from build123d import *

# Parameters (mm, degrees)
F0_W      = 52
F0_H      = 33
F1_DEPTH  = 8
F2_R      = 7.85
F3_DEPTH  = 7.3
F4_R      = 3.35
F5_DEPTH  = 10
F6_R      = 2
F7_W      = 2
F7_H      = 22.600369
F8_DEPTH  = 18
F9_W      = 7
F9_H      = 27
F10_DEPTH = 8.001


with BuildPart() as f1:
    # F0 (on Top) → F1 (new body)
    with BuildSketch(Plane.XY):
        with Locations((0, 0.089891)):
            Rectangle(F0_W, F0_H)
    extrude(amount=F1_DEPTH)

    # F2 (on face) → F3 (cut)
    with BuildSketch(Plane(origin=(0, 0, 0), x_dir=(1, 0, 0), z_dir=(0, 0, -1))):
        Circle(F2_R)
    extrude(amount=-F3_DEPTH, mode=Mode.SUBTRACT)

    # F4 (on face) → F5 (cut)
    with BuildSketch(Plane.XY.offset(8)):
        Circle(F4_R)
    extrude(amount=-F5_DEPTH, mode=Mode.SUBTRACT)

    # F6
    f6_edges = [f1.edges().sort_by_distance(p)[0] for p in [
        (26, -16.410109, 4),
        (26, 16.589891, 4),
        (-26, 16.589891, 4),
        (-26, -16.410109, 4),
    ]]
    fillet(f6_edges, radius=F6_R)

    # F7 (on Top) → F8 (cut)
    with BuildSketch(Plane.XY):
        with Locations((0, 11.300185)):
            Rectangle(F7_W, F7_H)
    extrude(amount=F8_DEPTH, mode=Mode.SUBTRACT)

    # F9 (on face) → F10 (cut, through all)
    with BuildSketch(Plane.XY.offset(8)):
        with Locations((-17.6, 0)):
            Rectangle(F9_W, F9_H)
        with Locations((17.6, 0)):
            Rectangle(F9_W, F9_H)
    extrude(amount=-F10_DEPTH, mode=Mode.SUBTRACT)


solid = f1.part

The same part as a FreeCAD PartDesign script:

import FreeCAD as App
import Part
import Sketcher
Q = App.Units.Quantity


def edges_at(feature, points):
    """Names of the edges that pass closest to the given points."""
    edges = feature.Shape.Edges
    near = lambda p: min(range(len(edges)), key=lambda i: edges[i].distToShape(Part.Vertex(*p))[0])
    return sorted({f"Edge{near(p) + 1}" for p in points})


def add_polygon(sketch, points):
    """Adds a closed chain of lines whose ends are joined by coincident constraints."""
    first, n = sketch.GeometryCount, len(points)
    for a, b in zip(points, points[1:] + points[:1]):
        sketch.addGeometry(Part.LineSegment(App.Vector(*a, 0), App.Vector(*b, 0)), False)
    for i in range(n):
        sketch.addConstraint(Sketcher.Constraint("Coincident", first + i, 2, first + (i + 1) % n, 1))

doc = App.newDocument("Part")
body = doc.addObject("PartDesign::Body", "Body")

sketch1 = body.newObject("Sketcher::SketchObject", "Sketch")
sketch1.AttachmentSupport = (doc.getObject("XY_Plane"), [""])
sketch1.MapMode = "FlatFace"
add_polygon(sketch1, [(-26, 17), (-26, -16), (26, -16), (26, 17)])
sketch1.addConstraint(Sketcher.Constraint("Vertical", 0))
sketch1.addConstraint(Sketcher.Constraint("Horizontal", 1))
sketch1.addConstraint(Sketcher.Constraint("Vertical", 2))
sketch1.addConstraint(Sketcher.Constraint("Horizontal", 3))
sketch1.addConstraint(Sketcher.Constraint("DistanceX", 1, 1, 1, 2, Q("52 mm")))
sketch1.addConstraint(Sketcher.Constraint("DistanceY", 0, 2, 0, 1, Q("33 mm")))
sketch1.addConstraint(Sketcher.Constraint("DistanceX", 0, 2, -1, 1, Q("26 mm")))
sketch1.addConstraint(Sketcher.Constraint("DistanceY", 0, 2, -1, 1, Q("16.410109 mm")))
pad1 = body.newObject("PartDesign::Pad", "Pad")
pad1.Profile = sketch1
pad1.Length = 8

sketch2 = body.newObject("Sketcher::SketchObject", "Sketch001")
sketch2.AttachmentSupport = (doc.getObject("XY_Plane"), [""])
sketch2.MapMode = "FlatFace"
sketch2.addGeometry(Part.Circle(App.Vector(0, 0, 0), App.Vector(0, 0, 1), 8), False)
sketch2.addConstraint(Sketcher.Constraint("Coincident", 0, 3, -1, 1))
sketch2.addConstraint(Sketcher.Constraint("Diameter", 0, Q("15.7 mm")))
pocket1 = body.newObject("PartDesign::Pocket", "Pocket")
pocket1.Profile = sketch2
pocket1.Length = 7.3
pocket1.Reversed = True

sketch3 = body.newObject("Sketcher::SketchObject", "Sketch002")
sketch3.AttachmentSupport = (doc.getObject("XY_Plane"), [""])
sketch3.MapMode = "FlatFace"
sketch3.AttachmentOffset = App.Placement(App.Vector(0, 0, 8), App.Rotation())
sketch3.addGeometry(Part.Circle(App.Vector(0, 0, 0), App.Vector(0, 0, 1), 3.4), False)
sketch3.addConstraint(Sketcher.Constraint("Coincident", 0, 3, -1, 1))
sketch3.addConstraint(Sketcher.Constraint("Diameter", 0, Q("6.7 mm")))
pocket2 = body.newObject("PartDesign::Pocket", "Pocket001")
pocket2.Profile = sketch3
pocket2.Length = 10
doc.recompute()

fillet = body.newObject("PartDesign::Fillet", "Fillet")
fillet.Base = (pocket2, edges_at(pocket2, [
    (26, -16.41, 4),
    (26, 16.59, 4),
    (-26, 16.59, 4),
    (-26, -16.41, 4),
]))
fillet.Radius = 2

sketch4 = body.newObject("Sketcher::SketchObject", "Sketch003")
sketch4.AttachmentSupport = (doc.getObject("XY_Plane"), [""])
sketch4.MapMode = "FlatFace"
add_polygon(sketch4, [(-1, 22.6), (-1, 0), (1, 0), (1, 22.6)])
sketch4.addConstraint(Sketcher.Constraint("Vertical", 0))
sketch4.addConstraint(Sketcher.Constraint("Horizontal", 1))
sketch4.addConstraint(Sketcher.Constraint("Vertical", 2))
sketch4.addConstraint(Sketcher.Constraint("Horizontal", 3))
sketch4.addConstraint(Sketcher.Constraint("Symmetric", 0, 2, 1, 2, -1, 1))
sketch4.addConstraint(Sketcher.Constraint("DistanceX", 1, 1, 1, 2, Q("2 mm")))
sketch4.addConstraint(Sketcher.Constraint("DistanceY", 0, 2, 0, 1, Q("22.600369 mm")))
pocket3 = body.newObject("PartDesign::Pocket", "Pocket002")
pocket3.Profile = sketch4
pocket3.Length = 18
pocket3.Reversed = True

sketch5 = body.newObject("Sketcher::SketchObject", "Sketch004")
sketch5.AttachmentSupport = (doc.getObject("XY_Plane"), [""])
sketch5.MapMode = "FlatFace"
sketch5.AttachmentOffset = App.Placement(App.Vector(0, 0, 8), App.Rotation())
add_polygon(sketch5, [(-21, 14), (-21, -14), (-14, -14), (-14, 14)])
add_polygon(sketch5, [(14, 14), (14, -14), (21, -14), (21, 14)])
sketch5.addConstraint(Sketcher.Constraint("Vertical", 0))
sketch5.addConstraint(Sketcher.Constraint("Horizontal", 1))
sketch5.addConstraint(Sketcher.Constraint("Vertical", 2))
sketch5.addConstraint(Sketcher.Constraint("Horizontal", 3))
sketch5.addConstraint(Sketcher.Constraint("Vertical", 4))
sketch5.addConstraint(Sketcher.Constraint("Horizontal", 5))
sketch5.addConstraint(Sketcher.Constraint("Vertical", 6))
sketch5.addConstraint(Sketcher.Constraint("Horizontal", 7))
sketch5.addConstraint(Sketcher.Constraint("Symmetric", 2, 2, 4, 2, -1, 1))
sketch5.addConstraint(Sketcher.Constraint("Symmetric", 0, 2, 6, 2, -1, 1))
sketch5.addConstraint(Sketcher.Constraint("Horizontal", 1, 2, 4, 2))
sketch5.addConstraint(Sketcher.Constraint("DistanceX", 1, 1, 1, 2, Q("7 mm")))
sketch5.addConstraint(Sketcher.Constraint("DistanceY", 0, 2, 0, 1, Q("27 mm")))
sketch5.addConstraint(Sketcher.Constraint("DistanceX", 0, 2, -1, 1, Q("21.1 mm")))
pocket4 = body.newObject("PartDesign::Pocket", "Pocket003")
pocket4.Profile = sketch5
pocket4.Type = "ThroughAll"

doc.recompute()
